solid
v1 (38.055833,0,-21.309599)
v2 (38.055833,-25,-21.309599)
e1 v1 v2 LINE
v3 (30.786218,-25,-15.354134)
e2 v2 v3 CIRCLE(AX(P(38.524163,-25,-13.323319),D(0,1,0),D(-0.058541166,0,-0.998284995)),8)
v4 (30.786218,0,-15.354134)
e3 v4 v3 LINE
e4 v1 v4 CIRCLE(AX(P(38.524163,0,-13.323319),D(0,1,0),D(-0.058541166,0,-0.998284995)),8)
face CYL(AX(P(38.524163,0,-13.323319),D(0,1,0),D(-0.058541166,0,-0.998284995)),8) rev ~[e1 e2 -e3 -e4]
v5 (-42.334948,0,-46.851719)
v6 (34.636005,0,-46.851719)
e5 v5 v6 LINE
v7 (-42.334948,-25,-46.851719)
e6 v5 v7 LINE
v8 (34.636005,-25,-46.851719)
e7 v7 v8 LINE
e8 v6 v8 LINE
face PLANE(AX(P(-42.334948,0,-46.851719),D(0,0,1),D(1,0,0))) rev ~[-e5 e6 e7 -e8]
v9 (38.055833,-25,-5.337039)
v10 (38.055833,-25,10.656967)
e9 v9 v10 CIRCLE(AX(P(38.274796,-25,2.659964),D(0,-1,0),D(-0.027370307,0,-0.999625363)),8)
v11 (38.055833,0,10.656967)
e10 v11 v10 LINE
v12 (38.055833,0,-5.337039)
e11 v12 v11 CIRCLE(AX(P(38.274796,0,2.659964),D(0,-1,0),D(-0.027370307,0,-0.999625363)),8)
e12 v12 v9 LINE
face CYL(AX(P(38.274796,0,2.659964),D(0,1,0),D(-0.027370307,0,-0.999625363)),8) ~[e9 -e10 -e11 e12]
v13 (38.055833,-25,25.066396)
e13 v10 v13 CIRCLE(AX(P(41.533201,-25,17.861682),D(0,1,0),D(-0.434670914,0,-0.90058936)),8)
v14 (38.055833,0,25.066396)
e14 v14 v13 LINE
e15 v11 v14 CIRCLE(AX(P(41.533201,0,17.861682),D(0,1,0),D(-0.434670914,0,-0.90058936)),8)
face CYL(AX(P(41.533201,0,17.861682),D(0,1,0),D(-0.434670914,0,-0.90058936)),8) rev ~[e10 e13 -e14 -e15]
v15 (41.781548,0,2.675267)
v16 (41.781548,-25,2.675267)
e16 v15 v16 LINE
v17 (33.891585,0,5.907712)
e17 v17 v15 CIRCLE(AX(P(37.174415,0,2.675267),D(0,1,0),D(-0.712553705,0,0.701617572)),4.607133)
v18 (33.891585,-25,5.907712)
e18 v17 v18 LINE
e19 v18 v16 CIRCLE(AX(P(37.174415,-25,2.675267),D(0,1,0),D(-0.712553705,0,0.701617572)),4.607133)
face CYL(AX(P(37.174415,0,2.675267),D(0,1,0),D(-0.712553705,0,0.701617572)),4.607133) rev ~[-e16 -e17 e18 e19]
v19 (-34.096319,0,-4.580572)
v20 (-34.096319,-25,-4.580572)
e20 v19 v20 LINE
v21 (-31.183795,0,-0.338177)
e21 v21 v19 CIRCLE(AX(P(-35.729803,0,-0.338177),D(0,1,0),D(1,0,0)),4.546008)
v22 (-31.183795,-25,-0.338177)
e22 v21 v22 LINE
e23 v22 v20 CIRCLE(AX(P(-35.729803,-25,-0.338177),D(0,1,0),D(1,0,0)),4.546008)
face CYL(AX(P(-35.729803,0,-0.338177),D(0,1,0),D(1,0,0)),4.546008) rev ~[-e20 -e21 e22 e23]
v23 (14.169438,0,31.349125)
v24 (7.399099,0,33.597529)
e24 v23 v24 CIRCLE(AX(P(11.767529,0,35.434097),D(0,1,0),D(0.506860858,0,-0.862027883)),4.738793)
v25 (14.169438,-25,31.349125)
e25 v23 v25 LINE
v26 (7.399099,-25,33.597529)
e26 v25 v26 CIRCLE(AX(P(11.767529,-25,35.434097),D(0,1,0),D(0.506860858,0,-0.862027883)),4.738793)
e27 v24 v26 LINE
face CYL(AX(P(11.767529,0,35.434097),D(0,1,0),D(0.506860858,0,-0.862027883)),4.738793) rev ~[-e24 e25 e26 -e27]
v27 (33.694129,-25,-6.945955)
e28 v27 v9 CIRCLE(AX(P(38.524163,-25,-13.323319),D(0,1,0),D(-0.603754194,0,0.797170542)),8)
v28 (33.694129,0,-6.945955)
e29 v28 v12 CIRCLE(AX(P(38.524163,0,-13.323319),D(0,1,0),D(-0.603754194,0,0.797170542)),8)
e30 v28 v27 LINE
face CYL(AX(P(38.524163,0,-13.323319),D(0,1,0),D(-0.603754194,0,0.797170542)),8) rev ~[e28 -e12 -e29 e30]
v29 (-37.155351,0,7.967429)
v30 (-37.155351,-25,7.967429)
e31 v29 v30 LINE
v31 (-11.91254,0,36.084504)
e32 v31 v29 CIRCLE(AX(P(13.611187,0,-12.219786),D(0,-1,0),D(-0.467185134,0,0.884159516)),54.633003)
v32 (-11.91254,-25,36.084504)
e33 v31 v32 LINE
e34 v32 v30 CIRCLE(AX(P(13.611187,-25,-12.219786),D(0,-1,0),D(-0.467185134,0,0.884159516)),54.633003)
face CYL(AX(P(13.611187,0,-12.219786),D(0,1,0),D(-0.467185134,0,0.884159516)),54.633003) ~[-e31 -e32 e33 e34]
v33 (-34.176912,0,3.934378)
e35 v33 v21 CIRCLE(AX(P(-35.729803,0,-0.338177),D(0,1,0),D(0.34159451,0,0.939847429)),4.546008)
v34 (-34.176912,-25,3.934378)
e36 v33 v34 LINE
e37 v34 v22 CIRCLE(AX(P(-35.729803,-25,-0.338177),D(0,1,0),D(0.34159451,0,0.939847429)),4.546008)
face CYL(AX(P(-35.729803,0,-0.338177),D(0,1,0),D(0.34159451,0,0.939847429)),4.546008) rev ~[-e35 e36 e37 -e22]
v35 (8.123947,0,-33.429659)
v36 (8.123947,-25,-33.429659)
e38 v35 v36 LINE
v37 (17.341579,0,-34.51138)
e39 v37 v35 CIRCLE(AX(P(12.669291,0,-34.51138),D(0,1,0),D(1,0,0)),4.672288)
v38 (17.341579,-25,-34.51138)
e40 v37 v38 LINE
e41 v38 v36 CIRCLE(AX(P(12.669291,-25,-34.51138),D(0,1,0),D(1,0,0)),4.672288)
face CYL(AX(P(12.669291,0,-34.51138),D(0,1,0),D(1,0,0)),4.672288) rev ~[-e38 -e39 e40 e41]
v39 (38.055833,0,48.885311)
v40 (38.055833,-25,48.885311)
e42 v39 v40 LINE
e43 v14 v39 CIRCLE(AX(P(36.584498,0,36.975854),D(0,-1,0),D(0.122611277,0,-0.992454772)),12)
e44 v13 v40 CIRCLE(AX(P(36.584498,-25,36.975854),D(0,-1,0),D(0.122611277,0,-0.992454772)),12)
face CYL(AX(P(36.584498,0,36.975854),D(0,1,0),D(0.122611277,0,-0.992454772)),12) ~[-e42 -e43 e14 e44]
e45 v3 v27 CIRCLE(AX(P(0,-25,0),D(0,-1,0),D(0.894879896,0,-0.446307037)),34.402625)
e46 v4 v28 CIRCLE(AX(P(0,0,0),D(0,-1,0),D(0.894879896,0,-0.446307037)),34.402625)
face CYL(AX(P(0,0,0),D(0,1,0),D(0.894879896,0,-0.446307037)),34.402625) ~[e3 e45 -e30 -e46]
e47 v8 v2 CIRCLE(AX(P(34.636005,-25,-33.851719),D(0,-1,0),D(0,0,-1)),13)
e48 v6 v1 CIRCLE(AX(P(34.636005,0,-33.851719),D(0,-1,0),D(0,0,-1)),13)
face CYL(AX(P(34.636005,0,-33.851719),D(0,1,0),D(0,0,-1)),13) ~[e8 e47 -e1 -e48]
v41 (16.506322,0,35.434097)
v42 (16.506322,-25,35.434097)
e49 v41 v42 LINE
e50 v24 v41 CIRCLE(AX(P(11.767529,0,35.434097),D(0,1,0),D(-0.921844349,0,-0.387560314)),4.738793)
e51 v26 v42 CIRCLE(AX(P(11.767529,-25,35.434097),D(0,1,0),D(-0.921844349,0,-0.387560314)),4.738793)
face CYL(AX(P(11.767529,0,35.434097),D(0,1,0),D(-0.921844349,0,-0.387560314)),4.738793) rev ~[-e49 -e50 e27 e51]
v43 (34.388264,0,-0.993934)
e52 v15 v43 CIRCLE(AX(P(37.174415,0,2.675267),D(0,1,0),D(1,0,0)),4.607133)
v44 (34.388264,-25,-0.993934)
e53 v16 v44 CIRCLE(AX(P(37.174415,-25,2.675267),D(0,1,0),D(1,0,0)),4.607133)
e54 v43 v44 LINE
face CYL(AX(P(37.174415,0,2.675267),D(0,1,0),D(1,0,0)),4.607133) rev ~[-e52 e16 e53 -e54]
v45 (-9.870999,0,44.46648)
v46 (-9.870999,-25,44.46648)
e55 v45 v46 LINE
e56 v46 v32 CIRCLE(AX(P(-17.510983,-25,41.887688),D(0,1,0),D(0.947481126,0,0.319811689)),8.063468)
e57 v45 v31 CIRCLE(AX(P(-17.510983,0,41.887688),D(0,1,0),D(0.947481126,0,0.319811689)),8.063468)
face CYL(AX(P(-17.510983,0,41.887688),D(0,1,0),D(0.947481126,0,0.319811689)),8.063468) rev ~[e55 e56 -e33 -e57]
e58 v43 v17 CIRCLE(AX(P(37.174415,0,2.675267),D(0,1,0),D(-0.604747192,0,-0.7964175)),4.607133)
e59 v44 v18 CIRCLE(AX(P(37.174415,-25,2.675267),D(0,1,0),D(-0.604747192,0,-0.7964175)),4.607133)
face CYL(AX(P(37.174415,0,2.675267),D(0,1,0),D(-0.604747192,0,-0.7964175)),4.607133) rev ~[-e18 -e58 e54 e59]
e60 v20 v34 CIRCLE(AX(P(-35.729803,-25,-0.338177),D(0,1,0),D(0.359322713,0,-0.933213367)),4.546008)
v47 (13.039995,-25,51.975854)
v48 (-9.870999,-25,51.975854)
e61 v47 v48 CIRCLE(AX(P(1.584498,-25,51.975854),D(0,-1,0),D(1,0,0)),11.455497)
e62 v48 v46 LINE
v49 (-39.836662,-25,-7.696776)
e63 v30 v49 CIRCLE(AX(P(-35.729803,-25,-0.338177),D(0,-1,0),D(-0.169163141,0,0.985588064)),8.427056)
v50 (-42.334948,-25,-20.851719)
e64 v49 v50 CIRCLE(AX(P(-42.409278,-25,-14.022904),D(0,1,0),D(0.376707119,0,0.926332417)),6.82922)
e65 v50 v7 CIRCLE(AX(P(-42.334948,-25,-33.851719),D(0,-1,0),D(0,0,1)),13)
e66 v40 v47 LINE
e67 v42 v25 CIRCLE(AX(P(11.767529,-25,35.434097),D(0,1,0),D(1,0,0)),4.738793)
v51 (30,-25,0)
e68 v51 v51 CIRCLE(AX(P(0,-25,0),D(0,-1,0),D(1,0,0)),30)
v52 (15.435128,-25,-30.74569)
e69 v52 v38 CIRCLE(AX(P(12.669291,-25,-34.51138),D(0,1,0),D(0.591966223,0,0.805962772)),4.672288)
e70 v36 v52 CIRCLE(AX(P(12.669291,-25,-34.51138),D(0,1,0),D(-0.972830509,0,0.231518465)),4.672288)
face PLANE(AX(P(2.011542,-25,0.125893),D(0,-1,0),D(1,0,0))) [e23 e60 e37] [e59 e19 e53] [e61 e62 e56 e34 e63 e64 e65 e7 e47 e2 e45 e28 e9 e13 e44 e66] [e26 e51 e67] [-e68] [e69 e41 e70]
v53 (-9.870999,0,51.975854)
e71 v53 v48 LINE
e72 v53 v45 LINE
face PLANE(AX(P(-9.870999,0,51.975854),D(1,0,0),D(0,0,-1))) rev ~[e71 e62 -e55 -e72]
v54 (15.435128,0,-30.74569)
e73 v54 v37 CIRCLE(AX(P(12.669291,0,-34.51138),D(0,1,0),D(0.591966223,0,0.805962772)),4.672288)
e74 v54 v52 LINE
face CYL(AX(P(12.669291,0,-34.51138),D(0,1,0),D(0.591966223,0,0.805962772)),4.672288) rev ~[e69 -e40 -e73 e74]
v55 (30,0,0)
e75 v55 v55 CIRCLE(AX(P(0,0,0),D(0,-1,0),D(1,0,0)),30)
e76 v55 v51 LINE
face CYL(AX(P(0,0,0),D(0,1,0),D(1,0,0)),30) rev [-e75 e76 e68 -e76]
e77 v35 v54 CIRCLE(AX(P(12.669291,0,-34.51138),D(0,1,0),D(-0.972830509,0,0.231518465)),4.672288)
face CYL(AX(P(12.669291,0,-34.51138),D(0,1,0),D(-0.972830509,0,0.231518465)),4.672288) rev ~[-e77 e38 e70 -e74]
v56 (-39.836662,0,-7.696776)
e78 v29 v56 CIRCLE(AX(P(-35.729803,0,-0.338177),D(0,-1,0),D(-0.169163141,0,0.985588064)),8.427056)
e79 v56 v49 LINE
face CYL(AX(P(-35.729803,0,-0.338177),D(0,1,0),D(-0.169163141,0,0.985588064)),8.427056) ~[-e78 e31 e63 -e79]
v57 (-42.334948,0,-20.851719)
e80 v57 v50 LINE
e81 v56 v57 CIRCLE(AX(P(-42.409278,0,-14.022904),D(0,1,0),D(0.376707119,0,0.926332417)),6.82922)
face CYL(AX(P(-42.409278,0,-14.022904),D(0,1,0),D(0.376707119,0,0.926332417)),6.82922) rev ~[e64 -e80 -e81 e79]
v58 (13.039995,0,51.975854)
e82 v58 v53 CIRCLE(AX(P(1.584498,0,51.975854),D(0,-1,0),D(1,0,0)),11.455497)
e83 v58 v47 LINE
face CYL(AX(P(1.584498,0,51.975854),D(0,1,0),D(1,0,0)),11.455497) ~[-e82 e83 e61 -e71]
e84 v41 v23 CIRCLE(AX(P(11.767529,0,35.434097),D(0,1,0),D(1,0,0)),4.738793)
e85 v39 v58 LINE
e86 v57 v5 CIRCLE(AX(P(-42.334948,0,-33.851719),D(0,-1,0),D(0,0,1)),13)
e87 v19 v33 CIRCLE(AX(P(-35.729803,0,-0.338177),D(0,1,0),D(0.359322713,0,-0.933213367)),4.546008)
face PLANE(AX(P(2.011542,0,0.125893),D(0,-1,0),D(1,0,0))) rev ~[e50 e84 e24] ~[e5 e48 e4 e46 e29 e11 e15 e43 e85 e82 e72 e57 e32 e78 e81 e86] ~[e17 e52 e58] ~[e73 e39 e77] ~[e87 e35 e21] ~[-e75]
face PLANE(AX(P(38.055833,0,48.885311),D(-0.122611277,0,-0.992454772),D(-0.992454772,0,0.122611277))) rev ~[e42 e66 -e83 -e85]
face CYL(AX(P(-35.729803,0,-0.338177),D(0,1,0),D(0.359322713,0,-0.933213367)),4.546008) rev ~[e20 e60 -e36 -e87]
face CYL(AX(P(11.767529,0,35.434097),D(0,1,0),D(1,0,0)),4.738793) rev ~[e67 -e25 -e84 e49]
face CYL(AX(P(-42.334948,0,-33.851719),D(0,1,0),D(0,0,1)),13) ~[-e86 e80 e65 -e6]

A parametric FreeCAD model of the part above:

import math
import FreeCAD as App
import Part
import Sketcher
Q = App.Units.Quantity

doc = App.newDocument("Part")
params = doc.addObject("Spreadsheet::Sheet", "Params")
for row, (alias, value) in enumerate([
    ("sketch1_diameter", "60 mm"),
    ("sketch1_radius", "13 mm"),
    ("sketch1_radius2", "8 mm"),
    ("sketch1_radius3", "12 mm"),
    ("pad1_length", "25 mm"),
], start=1):
    params.set(f"A{row}", alias)
    params.set(f"B{row}", "=" + value)
    params.setAlias(f"B{row}", alias)

body = doc.addObject("PartDesign::Body", "Body")

sketch1 = doc.addObject("Sketcher::SketchObject", "Sketch")
body.addObject(sketch1)
sketch1.AttachmentSupport = (doc.XZ_Plane, [""])
sketch1.MapMode = "FlatFace"
sketch1.addGeometry([
    Part.LineSegment(App.Vector(-9.870999, 51.975854, 0), App.Vector(-9.870999, 44.46648, 0)),
    Part.ArcOfCircle(Part.Circle(App.Vector(-17.510983, 41.887688, 0), App.Vector(0, 0, 1), 8.063468), math.radians(-46.028762), math.radians(18.651537)),
    Part.ArcOfCircle(Part.Circle(App.Vector(13.611187, -12.219786, 0), App.Vector(0, 0, 1), 54.633003), math.radians(117.851732), math.radians(158.314854)),
    Part.ArcOfCircle(Part.Circle(App.Vector(-35.729803, -0.338177, 0), App.Vector(0, 0, 1), 8.427056), math.radians(99.739166), math.radians(240.833966)),
    Part.ArcOfCircle(Part.Circle(App.Vector(-42.409278, -14.022904, 0), App.Vector(0, 0, 1), 6.82922), math.radians(-89.37637), math.radians(67.870137)),
    Part.ArcOfCircle(Part.Circle(App.Vector(-42.334948, -33.851719, 0), App.Vector(0, 0, 1), 13), math.radians(90), math.radians(270)),
    Part.LineSegment(App.Vector(-42.334948, -46.851719, 0), App.Vector(34.636005, -46.851719, 0)),
    Part.ArcOfCircle(Part.Circle(App.Vector(34.636005, -33.851719, 0), App.Vector(0, 0, 1), 13), math.radians(-90), math.radians(74.748069)),
    Part.ArcOfCircle(Part.Circle(App.Vector(38.524163, -13.323319, 0), App.Vector(0, 0, 1), 8), math.radians(-165.294439), math.radians(-93.356081)),
    Part.ArcOfCircle(Part.Circle(App.Vector(0, 0, 0), App.Vector(0, 0, 1), 34.402625), math.radians(-26.506993), math.radians(-11.648198)),
    Part.ArcOfCircle(Part.Circle(App.Vector(38.524163, -13.323319, 0), App.Vector(0, 0, 1), 8), math.radians(93.356081), math.radians(127.139248)),
    Part.ArcOfCircle(Part.Circle(App.Vector(38.274796, 2.659964, 0), App.Vector(0, 0, 1), 8), math.radians(-91.568399), math.radians(91.568399)),
    Part.ArcOfCircle(Part.Circle(App.Vector(41.533201, 17.861682, 0), App.Vector(0, 0, 1), 8), math.radians(115.764356), math.radians(244.235644)),
    Part.ArcOfCircle(Part.Circle(App.Vector(36.584498, 36.975854, 0), App.Vector(0, 0, 1), 12), math.radians(-82.957169), math.radians(82.957169)),
    Part.LineSegment(App.Vector(38.055833, 48.885311, 0), App.Vector(13.039995, 51.975854, 0)),
    Part.ArcOfCircle(Part.Circle(App.Vector(1.584498, 51.975854, 0), App.Vector(0, 0, 1), 11.455497), math.radians(0), math.radians(180)),
    Part.ArcOfCircle(Part.Circle(App.Vector(37.174415, 2.675267, 0), App.Vector(0, 0, 1), 4.607133), math.radians(-127.210652), math.radians(0)),
    Part.ArcOfCircle(Part.Circle(App.Vector(37.174415, 2.675267, 0), App.Vector(0, 0, 1), 4.607133), math.radians(135.443073), math.radians(232.789348)),
    Part.ArcOfCircle(Part.Circle(App.Vector(37.174415, 2.675267, 0), App.Vector(0, 0, 1), 4.607133), math.radians(0), math.radians(135.443073)),
    Part.ArcOfCircle(Part.Circle(App.Vector(11.767529, 35.434097, 0), App.Vector(0, 0, 1), 4.738793), math.radians(-59.545042), math.radians(0)),
    Part.ArcOfCircle(Part.Circle(App.Vector(11.767529, 35.434097, 0), App.Vector(0, 0, 1), 4.738793), math.radians(-157.19722), math.radians(-59.545042)),
    Part.ArcOfCircle(Part.Circle(App.Vector(11.767529, 35.434097, 0), App.Vector(0, 0, 1), 4.738793), math.radians(0), math.radians(202.80278)),
    Part.ArcOfCircle(Part.Circle(App.Vector(-35.729803, -0.338177, 0), App.Vector(0, 0, 1), 4.546008), math.radians(70.02595), math.radians(291.058607)),
    Part.ArcOfCircle(Part.Circle(App.Vector(-35.729803, -0.338177, 0), App.Vector(0, 0, 1), 4.546008), math.radians(0), math.radians(70.02595)),
    Part.ArcOfCircle(Part.Circle(App.Vector(-35.729803, -0.338177, 0), App.Vector(0, 0, 1), 4.546008), math.radians(-68.941393), math.radians(0)),
    Part.ArcOfCircle(Part.Circle(App.Vector(12.669291, -34.51138, 0), App.Vector(0, 0, 1), 4.672288), math.radians(166.613513), math.radians(360)),
    Part.ArcOfCircle(Part.Circle(App.Vector(12.669291, -34.51138, 0), App.Vector(0, 0, 1), 4.672288), math.radians(53.703338), math.radians(166.613513)),
    Part.ArcOfCircle(Part.Circle(App.Vector(12.669291, -34.51138, 0), App.Vector(0, 0, 1), 4.672288), math.radians(0), math.radians(53.703338)),
    Part.Circle(App.Vector(0, 0, 0), App.Vector(0, 0, 1), 30),
], False)
sketch1.addConstraint([
    Sketcher.Constraint("Coincident", 0, 2, 1, 2),
    Sketcher.Constraint("Coincident", 1, 1, 2, 1),
    Sketcher.Constraint("Coincident", 2, 2, 3, 1),
    Sketcher.Constraint("Coincident", 3, 2, 4, 2),
    Sketcher.Constraint("Coincident", 4, 1, 5, 1),
    Sketcher.Constraint("Tangent", 5, 2, 6, 1),
    Sketcher.Constraint("Tangent", 6, 2, 7, 1),
    Sketcher.Constraint("Coincident", 7, 2, 8, 2),
    Sketcher.Constraint("Coincident", 8, 1, 9, 1),
    Sketcher.Constraint("Coincident", 9, 2, 10, 2),
    Sketcher.Constraint("Coincident", 10, 1, 11, 1),
    Sketcher.Constraint("Coincident", 11, 2, 12, 2),
    Sketcher.Constraint("Coincident", 12, 1, 13, 1),
    Sketcher.Constraint("Tangent", 13, 2, 14, 1),
    Sketcher.Constraint("Coincident", 14, 2, 15, 1),
    Sketcher.Constraint("Tangent", 15, 2, 0, 1),
    Sketcher.Constraint("Tangent", 16, 1, 17, 2),
    Sketcher.Constraint("Tangent", 17, 1, 18, 2),
    Sketcher.Constraint("Tangent", 18, 1, 16, 2),
    Sketcher.Constraint("Tangent", 19, 1, 20, 2),
    Sketcher.Constraint("Tangent", 20, 1, 21, 2),
    Sketcher.Constraint("Tangent", 21, 1, 19, 2),
    Sketcher.Constraint("Tangent", 22, 1, 23, 2),
    Sketcher.Constraint("Tangent", 23, 1, 24, 2),
    Sketcher.Constraint("Tangent", 24, 1, 22, 2),
    Sketcher.Constraint("Tangent", 25, 1, 26, 2),
    Sketcher.Constraint("Tangent", 26, 1, 27, 2),
    Sketcher.Constraint("Tangent", 27, 1, 25, 2),
    Sketcher.Constraint("Vertical", 0),
    Sketcher.Constraint("Horizontal", 6),
    Sketcher.Constraint("Coincident", 9, 3, -1, 1),
    Sketcher.Constraint("Coincident", 28, 3, -1, 1),
    Sketcher.Constraint("Coincident", 10, 3, 8, 3),
    Sketcher.Constraint("Coincident", 22, 3, 3, 3),
    Sketcher.Constraint("Equal", 5, 7),
    Sketcher.Constraint("Equal", 8, 10),
    Sketcher.Constraint("Equal", 10, 11),
    Sketcher.Constraint("Equal", 11, 12),
    Sketcher.Constraint("Horizontal", 15, 3, 14, 2),
    Sketcher.Constraint("Horizontal", 17, 3, 18, 1),
    Sketcher.Constraint("Horizontal", 20, 3, 21, 1),
    Sketcher.Constraint("Horizontal", 24, 3, 23, 1),
    Sketcher.Constraint("Horizontal", 26, 3, 27, 1),
    Sketcher.Constraint("Vertical", 5, 3, 4, 1),
    Sketcher.Constraint("Vertical", 7, 2, 10, 1),
    Sketcher.Constraint("Vertical", 10, 1, 11, 2),
    Sketcher.Constraint("Vertical", 11, 2, 12, 1),
    Sketcher.Constraint("Vertical", 12, 1, 13, 2),
    Sketcher.Constraint("Diameter", 28, Q("60 mm")),
    Sketcher.Constraint("Radius", 5, Q("13 mm")),
    Sketcher.Constraint("Radius", 8, Q("8 mm")),
    Sketcher.Constraint("Radius", 13, Q("12 mm")),
    Sketcher.Constraint("DistanceX", 15, 3, 13, 3, Q("35 mm")),
    Sketcher.Constraint("DistanceY", 13, 3, 15, 3, Q("15 mm")),
    Sketcher.Constraint("Radius", 1, Q("8.063468 mm")),
    Sketcher.Constraint("Radius", 4, Q("6.82922 mm")),
    Sketcher.Constraint("Radius", 22, Q("4.546008 mm")),
    Sketcher.Constraint("DistanceX", 0, 2, -1, 1, Q("9.870999 mm")),
    Sketcher.Constraint("Radius", 2, Q("54.633003 mm")),
    Sketcher.Constraint("Radius", 3, Q("8.427056 mm")),
    Sketcher.Constraint("Radius", 9, Q("34.402625 mm")),
    Sketcher.Constraint("Radius", 15, Q("11.455497 mm")),
    Sketcher.Constraint("Radius", 16, Q("4.607133 mm")),
    Sketcher.Constraint("Radius", 19, Q("4.738793 mm")),
    Sketcher.Constraint("Radius", 25, Q("4.672288 mm")),
    Sketcher.Constraint("DistanceY", 8, 3, 12, 3, Q("31.185001 mm")),
    Sketcher.Constraint("DistanceX", -1, 1, 12, 3, Q("41.533201 mm")),
    Sketcher.Constraint("DistanceY", 7, 2, -1, 1, Q("21.309599 mm")),
    Sketcher.Constraint("DistanceX", -1, 1, 20, 1, Q("7.399099 mm")),
    Sketcher.Constraint("DistanceY", 7, 3, 8, 3, Q("20.5284 mm")),
    Sketcher.Constraint("DistanceY", 3, 2, 3, 3, Q("7.358599 mm")),
    Sketcher.Constraint("DistanceY", 16, 3, 11, 2, Q("7.981699 mm")),
    Sketcher.Constraint("DistanceY", 16, 1, 16, 3, Q("3.669201 mm")),
    Sketcher.Constraint("DistanceX", 6, 1, 6, 2, Q("76.970953 mm")),
    Sketcher.Constraint("DistanceY", 0, 2, 0, 1, Q("7.509374 mm")),
    Sketcher.Constraint("DistanceY", -1, 1, 1, 3, Q("41.887688 mm")),
    Sketcher.Constraint("DistanceX", 4, 3, -1, 1, Q("42.409278 mm")),
    Sketcher.Constraint("DistanceY", 5, 3, -1, 1, Q("33.851719 mm")),
    Sketcher.Constraint("DistanceX", -1, 1, 19, 3, Q("11.767529 mm")),
    Sketcher.Constraint("DistanceX", -1, 1, 25, 3, Q("12.669291 mm")),
    Sketcher.Constraint("DistanceY", 25, 3, -1, 1, Q("34.51138 mm")),
    Sketcher.Constraint("DistanceX", 1, 1, -1, 1, Q("11.91254 mm")),
    Sketcher.Constraint("DistanceX", 2, 2, -1, 1, Q("37.155351 mm")),
    Sketcher.Constraint("DistanceY", -1, 1, 2, 2, Q("7.967429 mm")),
    Sketcher.Constraint("DistanceY", -1, 1, 20, 1, Q("33.597529 mm")),
    Sketcher.Constraint("DistanceX", 22, 1, -1, 1, Q("34.176912 mm")),
    Sketcher.Constraint("DistanceX", 24, 1, -1, 1, Q("34.096319 mm")),
    Sketcher.Constraint("DistanceY", 25, 1, -1, 1, Q("33.429659 mm")),
    Sketcher.Constraint("DistanceY", 26, 1, -1, 1, Q("30.74569 mm")),
    Sketcher.Constraint("DistanceX", 16, 3, 11, 3, Q("1.100381 mm")),
    Sketcher.Constraint("DistanceX", 17, 1, 16, 3, Q("3.282829 mm")),
    Sketcher.Constraint("DistanceX", 19, 3, 19, 1, Q("2.401909 mm")),
])
sketch1.setExpression("Constraints[48]", "Params.sketch1_diameter")
sketch1.setExpression("Constraints[49]", "Params.sketch1_radius")
sketch1.setExpression("Constraints[50]", "Params.sketch1_radius2")
sketch1.setExpression("Constraints[51]", "Params.sketch1_radius3")
pad1 = doc.addObject("PartDesign::Pad", "Pad")
body.addObject(pad1)
pad1.Profile = sketch1
pad1.setExpression("Length", "Params.pad1_length")

doc.recompute()
